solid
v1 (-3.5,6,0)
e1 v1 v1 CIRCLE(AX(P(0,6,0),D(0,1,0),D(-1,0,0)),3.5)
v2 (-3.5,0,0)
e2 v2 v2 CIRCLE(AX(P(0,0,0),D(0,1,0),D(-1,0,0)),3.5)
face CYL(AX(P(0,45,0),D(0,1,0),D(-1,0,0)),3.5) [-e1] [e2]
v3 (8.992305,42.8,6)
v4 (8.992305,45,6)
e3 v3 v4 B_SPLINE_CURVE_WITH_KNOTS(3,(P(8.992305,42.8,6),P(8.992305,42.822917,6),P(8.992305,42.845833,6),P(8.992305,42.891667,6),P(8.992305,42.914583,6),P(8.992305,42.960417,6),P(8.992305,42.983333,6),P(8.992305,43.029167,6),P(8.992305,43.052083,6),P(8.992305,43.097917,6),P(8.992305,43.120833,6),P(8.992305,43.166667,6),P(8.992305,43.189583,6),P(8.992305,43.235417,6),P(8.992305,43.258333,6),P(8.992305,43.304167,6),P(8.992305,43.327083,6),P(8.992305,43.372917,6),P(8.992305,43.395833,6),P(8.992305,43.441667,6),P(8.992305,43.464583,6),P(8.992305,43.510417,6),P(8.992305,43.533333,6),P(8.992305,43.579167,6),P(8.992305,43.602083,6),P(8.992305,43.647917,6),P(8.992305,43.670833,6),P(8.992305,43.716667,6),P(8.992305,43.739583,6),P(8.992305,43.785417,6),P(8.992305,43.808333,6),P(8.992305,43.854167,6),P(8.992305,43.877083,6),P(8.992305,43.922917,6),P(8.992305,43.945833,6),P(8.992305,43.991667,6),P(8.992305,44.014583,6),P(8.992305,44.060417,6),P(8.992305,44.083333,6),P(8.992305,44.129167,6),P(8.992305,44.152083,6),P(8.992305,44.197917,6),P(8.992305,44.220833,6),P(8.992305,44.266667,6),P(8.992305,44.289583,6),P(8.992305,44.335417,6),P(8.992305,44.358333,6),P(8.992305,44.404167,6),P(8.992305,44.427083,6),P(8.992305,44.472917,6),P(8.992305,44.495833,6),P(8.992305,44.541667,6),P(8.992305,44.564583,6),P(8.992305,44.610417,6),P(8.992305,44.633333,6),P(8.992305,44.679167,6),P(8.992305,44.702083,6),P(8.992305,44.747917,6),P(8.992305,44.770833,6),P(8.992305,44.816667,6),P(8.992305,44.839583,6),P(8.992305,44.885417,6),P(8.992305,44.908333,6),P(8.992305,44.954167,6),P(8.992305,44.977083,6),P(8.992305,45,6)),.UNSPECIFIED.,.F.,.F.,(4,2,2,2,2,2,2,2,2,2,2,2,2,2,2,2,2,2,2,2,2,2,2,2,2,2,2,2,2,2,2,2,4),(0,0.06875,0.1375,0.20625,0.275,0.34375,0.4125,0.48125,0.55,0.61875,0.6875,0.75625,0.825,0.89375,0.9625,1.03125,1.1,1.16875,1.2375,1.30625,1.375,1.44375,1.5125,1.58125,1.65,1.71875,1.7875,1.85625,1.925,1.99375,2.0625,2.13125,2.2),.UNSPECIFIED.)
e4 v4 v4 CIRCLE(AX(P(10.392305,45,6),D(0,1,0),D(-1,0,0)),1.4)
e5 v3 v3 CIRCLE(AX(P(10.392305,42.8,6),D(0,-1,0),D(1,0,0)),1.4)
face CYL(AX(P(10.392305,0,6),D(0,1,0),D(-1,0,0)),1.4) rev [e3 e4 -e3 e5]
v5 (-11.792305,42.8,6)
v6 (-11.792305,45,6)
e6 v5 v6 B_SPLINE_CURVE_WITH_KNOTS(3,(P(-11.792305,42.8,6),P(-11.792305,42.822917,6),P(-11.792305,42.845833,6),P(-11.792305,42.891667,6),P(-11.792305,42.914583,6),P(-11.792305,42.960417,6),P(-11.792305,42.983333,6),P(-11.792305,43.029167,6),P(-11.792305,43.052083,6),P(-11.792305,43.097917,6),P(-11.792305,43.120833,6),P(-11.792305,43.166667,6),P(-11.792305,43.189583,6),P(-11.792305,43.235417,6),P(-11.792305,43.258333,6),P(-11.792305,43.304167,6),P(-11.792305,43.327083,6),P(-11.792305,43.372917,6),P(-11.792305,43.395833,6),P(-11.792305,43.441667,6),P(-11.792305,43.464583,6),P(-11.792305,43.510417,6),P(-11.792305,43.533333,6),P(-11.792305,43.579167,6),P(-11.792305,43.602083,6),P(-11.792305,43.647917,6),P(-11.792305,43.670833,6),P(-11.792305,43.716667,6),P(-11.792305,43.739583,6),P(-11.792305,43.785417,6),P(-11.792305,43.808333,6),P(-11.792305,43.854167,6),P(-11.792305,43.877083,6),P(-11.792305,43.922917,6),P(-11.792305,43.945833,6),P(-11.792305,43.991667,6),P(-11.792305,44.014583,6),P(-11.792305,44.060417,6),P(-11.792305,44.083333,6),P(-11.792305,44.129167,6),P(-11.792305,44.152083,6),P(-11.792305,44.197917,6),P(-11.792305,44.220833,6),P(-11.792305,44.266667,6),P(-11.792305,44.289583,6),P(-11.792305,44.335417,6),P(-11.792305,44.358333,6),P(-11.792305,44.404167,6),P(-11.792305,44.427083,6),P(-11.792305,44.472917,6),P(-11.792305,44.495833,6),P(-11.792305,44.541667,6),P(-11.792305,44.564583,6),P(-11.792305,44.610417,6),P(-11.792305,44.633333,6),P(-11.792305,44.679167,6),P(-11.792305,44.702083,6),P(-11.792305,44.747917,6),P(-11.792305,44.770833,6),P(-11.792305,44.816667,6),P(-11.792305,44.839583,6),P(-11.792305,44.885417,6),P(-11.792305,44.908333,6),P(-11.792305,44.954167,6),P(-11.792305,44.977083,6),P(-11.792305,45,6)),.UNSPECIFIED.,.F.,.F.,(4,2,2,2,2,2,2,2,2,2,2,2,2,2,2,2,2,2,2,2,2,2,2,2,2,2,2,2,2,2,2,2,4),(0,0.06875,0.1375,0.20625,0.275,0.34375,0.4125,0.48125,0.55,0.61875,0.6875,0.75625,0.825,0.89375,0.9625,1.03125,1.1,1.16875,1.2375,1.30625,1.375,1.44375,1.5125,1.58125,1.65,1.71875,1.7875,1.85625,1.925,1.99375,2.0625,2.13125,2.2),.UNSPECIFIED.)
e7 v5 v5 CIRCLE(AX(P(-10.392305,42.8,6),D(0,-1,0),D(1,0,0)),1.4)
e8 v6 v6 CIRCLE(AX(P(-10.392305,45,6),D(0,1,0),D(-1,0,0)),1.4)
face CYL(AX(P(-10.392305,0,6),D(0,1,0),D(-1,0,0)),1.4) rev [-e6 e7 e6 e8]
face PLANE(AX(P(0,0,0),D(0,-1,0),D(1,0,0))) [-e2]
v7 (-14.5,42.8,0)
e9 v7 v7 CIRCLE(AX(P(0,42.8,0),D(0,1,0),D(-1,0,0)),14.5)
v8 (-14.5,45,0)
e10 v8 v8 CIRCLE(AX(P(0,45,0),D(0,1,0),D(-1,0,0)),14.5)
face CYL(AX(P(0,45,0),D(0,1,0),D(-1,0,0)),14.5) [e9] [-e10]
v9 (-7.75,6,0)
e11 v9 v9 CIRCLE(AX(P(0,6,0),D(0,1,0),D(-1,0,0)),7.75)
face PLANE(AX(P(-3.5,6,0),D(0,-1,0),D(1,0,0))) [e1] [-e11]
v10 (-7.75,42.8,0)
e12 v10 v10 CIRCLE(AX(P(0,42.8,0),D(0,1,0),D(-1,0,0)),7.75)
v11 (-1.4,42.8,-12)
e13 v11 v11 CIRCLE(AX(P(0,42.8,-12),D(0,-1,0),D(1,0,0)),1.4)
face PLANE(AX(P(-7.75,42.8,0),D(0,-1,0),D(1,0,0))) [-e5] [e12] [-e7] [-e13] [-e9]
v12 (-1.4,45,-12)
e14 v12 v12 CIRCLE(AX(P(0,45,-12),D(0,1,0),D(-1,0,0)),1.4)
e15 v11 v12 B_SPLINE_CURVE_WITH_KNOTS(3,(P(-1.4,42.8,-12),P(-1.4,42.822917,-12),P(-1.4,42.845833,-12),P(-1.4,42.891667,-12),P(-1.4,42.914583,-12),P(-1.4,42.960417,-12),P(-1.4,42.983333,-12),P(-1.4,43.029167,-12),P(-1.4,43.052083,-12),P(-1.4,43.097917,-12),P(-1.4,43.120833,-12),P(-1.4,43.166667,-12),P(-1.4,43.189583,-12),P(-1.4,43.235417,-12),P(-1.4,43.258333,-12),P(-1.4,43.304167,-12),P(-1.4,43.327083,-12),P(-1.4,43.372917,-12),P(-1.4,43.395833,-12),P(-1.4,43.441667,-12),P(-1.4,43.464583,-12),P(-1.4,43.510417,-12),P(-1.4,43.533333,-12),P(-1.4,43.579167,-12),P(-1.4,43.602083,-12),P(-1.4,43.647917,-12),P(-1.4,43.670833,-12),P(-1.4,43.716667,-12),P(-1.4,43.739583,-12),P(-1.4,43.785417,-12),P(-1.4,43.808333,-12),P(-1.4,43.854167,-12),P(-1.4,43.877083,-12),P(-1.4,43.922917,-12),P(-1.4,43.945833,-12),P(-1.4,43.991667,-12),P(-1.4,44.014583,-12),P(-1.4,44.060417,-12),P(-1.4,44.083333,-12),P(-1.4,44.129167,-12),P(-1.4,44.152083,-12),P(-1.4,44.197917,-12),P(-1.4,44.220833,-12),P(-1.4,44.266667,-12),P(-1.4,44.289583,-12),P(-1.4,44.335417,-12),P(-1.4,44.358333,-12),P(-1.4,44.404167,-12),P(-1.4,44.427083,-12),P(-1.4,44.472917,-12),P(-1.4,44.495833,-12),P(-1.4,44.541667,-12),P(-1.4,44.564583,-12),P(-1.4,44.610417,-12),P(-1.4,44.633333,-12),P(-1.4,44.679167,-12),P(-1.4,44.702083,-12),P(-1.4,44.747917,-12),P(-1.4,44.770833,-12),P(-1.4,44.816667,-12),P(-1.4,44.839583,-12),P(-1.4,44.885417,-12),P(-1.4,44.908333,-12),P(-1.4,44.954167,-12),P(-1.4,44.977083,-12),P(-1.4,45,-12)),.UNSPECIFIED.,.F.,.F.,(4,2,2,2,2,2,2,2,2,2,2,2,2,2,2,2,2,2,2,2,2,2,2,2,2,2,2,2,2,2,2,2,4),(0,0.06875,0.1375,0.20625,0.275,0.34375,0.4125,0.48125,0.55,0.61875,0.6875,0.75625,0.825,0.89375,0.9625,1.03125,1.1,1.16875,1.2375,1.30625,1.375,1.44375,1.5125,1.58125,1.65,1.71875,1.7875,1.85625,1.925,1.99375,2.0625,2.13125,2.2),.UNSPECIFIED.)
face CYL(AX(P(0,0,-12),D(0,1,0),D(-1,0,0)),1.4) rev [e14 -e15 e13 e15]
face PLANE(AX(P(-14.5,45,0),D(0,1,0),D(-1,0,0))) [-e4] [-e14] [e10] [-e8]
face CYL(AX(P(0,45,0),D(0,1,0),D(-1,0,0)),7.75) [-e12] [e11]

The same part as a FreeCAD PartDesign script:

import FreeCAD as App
import Part
import Sketcher

V = App.Vector

doc = App.newDocument("Part")
params = doc.addObject("Spreadsheet::Sheet", "Params")
for row, (alias, value) in enumerate([
    ("sketch1_height", "45 mm"),
    ("sketch1_height2", "6 mm"),
    ("sketch1_width", "3.5 mm"),
    ("sketch1_width2", "14.5 mm"),
    ("sketch1_height3", "2.2 mm"),
    ("revolution_angle", "360 deg"),
    ("sketch2_diameter", "2.8 mm"),
], start=1):
    params.set(f"A{row}", alias)
    params.set(f"B{row}", "=" + value)
    params.setAlias(f"B{row}", alias)

body = doc.addObject("PartDesign::Body", "Body")

# Sketch on XY plane
sketch1 = body.newObject("Sketcher::SketchObject", "Sketch")
sketch1.AttachmentSupport = (doc.getObject("XY_Plane"), [""])
sketch1.MapMode = "FlatFace"
sketch1.addGeometry(Part.LineSegment(V(-3.5, 0, 0), V(0, 0, 0)), False)
sketch1.addGeometry(Part.LineSegment(V(0, 0, 0), V(0, 45, 0)), False)
sketch1.addGeometry(Part.LineSegment(V(0, 45, 0), V(-14.5, 45, 0)), False)
sketch1.addGeometry(Part.LineSegment(V(-14.5, 45, 0), V(-14.5, 42.8, 0)), False)
sketch1.addGeometry(Part.LineSegment(V(-14.5, 42.8, 0), V(-7.75, 42.8, 0)), False)
sketch1.addGeometry(Part.LineSegment(V(-7.75, 42.8, 0), V(-7.75, 6, 0)), False)
sketch1.addGeometry(Part.LineSegment(V(-7.75, 6, 0), V(-3.5, 6, 0)), False)
sketch1.addGeometry(Part.LineSegment(V(-3.5, 6, 0), V(-3.5, 0, 0)), False)
sketch1.addConstraint(Sketcher.Constraint("Coincident", 0, 2, 1, 1))
sketch1.addConstraint(Sketcher.Constraint("Coincident", 1, 2, 2, 1))
sketch1.addConstraint(Sketcher.Constraint("Coincident", 2, 2, 3, 1))
sketch1.addConstraint(Sketcher.Constraint("Coincident", 3, 2, 4, 1))
sketch1.addConstraint(Sketcher.Constraint("Coincident", 4, 2, 5, 1))
sketch1.addConstraint(Sketcher.Constraint("Coincident", 5, 2, 6, 1))
sketch1.addConstraint(Sketcher.Constraint("Coincident", 6, 2, 7, 1))
sketch1.addConstraint(Sketcher.Constraint("Coincident", 7, 2, 0, 1))
sketch1.addConstraint(Sketcher.Constraint("Horizontal", 0))
sketch1.addConstraint(Sketcher.Constraint("Vertical", 1))
sketch1.addConstraint(Sketcher.Constraint("Horizontal", 2))
sketch1.addConstraint(Sketcher.Constraint("Vertical", 3))
sketch1.addConstraint(Sketcher.Constraint("Horizontal", 4))
sketch1.addConstraint(Sketcher.Constraint("Vertical", 5))
sketch1.addConstraint(Sketcher.Constraint("Horizontal", 6))
sketch1.addConstraint(Sketcher.Constraint("Vertical", 7))
sketch1.addConstraint(Sketcher.Constraint("Coincident", 0, 2, -1, 1))
sketch1.addConstraint(Sketcher.Constraint("DistanceY", 1, 1, 1, 2, 45.0))
sketch1.addConstraint(Sketcher.Constraint("DistanceY", 7, 2, 7, 1, 6.0))
sketch1.addConstraint(Sketcher.Constraint("DistanceX", 0, 1, 0, 2, 3.5))
sketch1.addConstraint(Sketcher.Constraint("DistanceX", 2, 2, 2, 1, 14.5))
sketch1.addConstraint(Sketcher.Constraint("DistanceY", 3, 2, 3, 1, 2.2))
sketch1.addConstraint(Sketcher.Constraint("DistanceX", 4, 1, 4, 2, 6.75))
sketch1.setExpression("Constraints[17]", "Params.sketch1_height")
sketch1.setExpression("Constraints[18]", "Params.sketch1_height2")
sketch1.setExpression("Constraints[19]", "Params.sketch1_width")
sketch1.setExpression("Constraints[20]", "Params.sketch1_width2")
sketch1.setExpression("Constraints[21]", "Params.sketch1_height3")
revolution = body.newObject("PartDesign::Revolution", "Revolution")
revolution.Profile = sketch1
revolution.ReferenceAxis = (sketch1, ["V_Axis"])
revolution.setExpression("Angle", "Params.revolution_angle")

# Sketch on XZ plane
sketch2 = body.newObject("Sketcher::SketchObject", "Sketch001")
sketch2.AttachmentSupport = (doc.getObject("XZ_Plane"), [""])
sketch2.MapMode = "FlatFace"
sketch2.AttachmentOffset = App.Placement(V(0, 0, -45), App.Rotation())
sketch2.addGeometry(Part.Circle(V(0, -12, 0), V(0, 0, 1), 1.4), False)
sketch2.addGeometry(Part.Circle(V(10.392305, 6, 0), V(0, 0, 1), 1.4), False)
sketch2.addGeometry(Part.Circle(V(-10.392305, 6, 0), V(0, 0, 1), 1.4), False)
sketch2.addConstraint(Sketcher.Constraint("Equal", 0, 1))
sketch2.addConstraint(Sketcher.Constraint("Equal", 1, 2))
sketch2.addConstraint(Sketcher.Constraint("Symmetric", 1, 3, 2, 3, -2))
sketch2.addConstraint(Sketcher.Constraint("PointOnObject", 0, 3, -2))
sketch2.addConstraint(Sketcher.Constraint("Diameter", 0, 2.8))
sketch2.addConstraint(Sketcher.Constraint("DistanceY", 0, 3, -1, 1, 12.0))
sketch2.addConstraint(Sketcher.Constraint("DistanceY", -1, 1, 1, 3, 6.0))
sketch2.addConstraint(Sketcher.Constraint("DistanceX", 2, 3, 1, 3, 20.78461))
sketch2.setExpression("Constraints[4]", "Params.sketch2_diameter")
pocket1 = body.newObject("PartDesign::Pocket", "Pocket")
pocket1.Profile = sketch2
pocket1.Type = "ThroughAll"
pocket1.Reversed = True

doc.recompute()
